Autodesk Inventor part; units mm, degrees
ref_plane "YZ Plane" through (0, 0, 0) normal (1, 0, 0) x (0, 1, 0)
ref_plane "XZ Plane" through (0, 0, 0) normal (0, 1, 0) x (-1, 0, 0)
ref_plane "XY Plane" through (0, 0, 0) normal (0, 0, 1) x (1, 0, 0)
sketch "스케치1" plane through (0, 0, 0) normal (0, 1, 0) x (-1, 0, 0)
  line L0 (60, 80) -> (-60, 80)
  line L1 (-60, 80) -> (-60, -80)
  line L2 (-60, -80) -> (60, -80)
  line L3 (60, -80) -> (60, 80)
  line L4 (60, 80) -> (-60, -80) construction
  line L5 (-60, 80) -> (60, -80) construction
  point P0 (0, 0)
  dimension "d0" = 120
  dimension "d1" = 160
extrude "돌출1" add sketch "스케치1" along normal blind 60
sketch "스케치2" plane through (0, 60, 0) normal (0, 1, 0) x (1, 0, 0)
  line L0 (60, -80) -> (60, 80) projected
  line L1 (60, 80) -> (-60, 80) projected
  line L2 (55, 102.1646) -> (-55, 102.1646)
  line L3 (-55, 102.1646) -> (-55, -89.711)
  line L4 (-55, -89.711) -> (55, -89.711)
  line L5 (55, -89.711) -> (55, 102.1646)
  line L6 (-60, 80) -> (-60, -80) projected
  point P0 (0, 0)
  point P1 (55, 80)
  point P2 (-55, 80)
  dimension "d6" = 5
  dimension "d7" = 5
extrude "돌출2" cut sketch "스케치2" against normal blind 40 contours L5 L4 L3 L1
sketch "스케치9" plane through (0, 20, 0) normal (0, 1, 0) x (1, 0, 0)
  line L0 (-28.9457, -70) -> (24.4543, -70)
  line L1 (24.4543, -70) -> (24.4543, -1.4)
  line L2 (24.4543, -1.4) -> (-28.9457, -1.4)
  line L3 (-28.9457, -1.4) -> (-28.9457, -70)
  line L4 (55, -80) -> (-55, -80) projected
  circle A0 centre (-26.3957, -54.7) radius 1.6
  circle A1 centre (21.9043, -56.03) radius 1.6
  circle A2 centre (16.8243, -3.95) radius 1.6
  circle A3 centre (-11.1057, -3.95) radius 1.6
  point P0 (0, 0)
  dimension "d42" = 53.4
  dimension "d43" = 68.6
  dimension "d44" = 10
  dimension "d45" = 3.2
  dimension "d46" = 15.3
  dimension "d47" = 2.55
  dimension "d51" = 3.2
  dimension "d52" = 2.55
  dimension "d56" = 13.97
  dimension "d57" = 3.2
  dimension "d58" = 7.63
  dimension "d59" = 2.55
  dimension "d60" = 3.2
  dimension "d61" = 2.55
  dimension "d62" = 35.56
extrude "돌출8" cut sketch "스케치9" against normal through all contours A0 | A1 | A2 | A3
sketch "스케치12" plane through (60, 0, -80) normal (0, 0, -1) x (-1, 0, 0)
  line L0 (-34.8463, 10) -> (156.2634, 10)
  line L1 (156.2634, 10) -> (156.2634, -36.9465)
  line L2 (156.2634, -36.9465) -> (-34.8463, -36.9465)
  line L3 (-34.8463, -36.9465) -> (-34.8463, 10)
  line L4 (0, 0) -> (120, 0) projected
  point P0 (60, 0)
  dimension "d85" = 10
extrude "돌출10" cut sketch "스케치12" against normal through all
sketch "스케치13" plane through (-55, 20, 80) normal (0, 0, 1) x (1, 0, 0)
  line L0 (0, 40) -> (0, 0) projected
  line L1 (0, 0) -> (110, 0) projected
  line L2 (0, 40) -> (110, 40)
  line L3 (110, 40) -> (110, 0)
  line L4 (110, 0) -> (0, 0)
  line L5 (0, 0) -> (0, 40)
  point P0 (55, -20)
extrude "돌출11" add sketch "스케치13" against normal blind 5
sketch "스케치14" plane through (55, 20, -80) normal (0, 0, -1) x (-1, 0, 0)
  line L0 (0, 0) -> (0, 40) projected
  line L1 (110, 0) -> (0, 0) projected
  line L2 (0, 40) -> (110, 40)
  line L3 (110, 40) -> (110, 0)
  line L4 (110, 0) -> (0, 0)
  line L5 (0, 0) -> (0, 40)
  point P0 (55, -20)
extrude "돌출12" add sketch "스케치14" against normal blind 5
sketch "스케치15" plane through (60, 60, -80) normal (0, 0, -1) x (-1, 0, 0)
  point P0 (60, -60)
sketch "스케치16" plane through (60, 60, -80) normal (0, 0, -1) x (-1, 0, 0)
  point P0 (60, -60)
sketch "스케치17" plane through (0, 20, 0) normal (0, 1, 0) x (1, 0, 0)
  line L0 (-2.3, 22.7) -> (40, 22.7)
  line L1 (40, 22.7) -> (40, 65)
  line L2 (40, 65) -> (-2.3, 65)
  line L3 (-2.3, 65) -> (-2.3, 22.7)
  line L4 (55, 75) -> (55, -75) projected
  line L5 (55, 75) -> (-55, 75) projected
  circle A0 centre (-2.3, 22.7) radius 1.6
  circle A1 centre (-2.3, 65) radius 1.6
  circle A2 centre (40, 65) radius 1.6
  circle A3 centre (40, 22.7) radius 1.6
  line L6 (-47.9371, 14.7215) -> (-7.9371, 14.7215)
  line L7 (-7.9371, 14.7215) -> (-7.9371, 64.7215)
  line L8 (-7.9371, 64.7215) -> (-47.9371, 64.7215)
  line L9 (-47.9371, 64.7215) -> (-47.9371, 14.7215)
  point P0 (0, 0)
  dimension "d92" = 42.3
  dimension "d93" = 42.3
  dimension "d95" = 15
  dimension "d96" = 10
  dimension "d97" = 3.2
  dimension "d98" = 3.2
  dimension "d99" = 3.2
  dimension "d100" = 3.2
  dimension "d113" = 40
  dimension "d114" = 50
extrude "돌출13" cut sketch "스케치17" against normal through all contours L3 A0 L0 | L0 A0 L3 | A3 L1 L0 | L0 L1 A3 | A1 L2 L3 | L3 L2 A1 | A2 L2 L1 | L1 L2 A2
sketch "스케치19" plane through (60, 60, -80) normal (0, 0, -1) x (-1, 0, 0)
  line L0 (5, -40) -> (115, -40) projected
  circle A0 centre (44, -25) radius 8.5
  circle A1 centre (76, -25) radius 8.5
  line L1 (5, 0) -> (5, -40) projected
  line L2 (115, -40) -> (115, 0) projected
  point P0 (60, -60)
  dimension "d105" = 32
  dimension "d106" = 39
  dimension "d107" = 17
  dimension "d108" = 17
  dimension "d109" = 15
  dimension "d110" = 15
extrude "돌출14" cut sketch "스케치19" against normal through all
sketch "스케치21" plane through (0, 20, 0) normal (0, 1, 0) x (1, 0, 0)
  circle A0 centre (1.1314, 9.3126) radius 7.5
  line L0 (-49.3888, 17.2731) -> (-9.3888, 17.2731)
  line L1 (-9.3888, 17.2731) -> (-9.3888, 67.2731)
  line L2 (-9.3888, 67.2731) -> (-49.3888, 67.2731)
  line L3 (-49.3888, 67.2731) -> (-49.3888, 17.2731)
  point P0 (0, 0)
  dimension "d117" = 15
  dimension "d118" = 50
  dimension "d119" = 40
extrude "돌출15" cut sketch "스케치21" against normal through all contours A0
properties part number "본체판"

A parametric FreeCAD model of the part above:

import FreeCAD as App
import Part
import Sketcher
Q = App.Units.Quantity


def add_polygon(sketch, points):
    """Adds a closed chain of lines whose ends are joined by coincident constraints."""
    first, n = sketch.GeometryCount, len(points)
    for a, b in zip(points, points[1:] + points[:1]):
        sketch.addGeometry(Part.LineSegment(App.Vector(*a, 0), App.Vector(*b, 0)), False)
    for i in range(n):
        sketch.addConstraint(Sketcher.Constraint("Coincident", first + i, 2, first + (i + 1) % n, 1))

doc = App.newDocument("Part")
body = doc.addObject("PartDesign::Body", "Body")

# Sketch on XZ plane
sketch1 = body.newObject("Sketcher::SketchObject", "Sketch")
sketch1.AttachmentSupport = (doc.getObject("XZ_Plane"), [""])
sketch1.MapMode = "FlatFace"
add_polygon(sketch1, [(-60, -80), (-60, 80), (60, 80), (60, -80)])  # lines 0-3
sketch1.addConstraint(Sketcher.Constraint("Vertical", 0))
sketch1.addConstraint(Sketcher.Constraint("Horizontal", 1))
sketch1.addConstraint(Sketcher.Constraint("Vertical", 2))
sketch1.addConstraint(Sketcher.Constraint("Horizontal", 3))
sketch1.addConstraint(Sketcher.Constraint("Symmetric", 0, 2, 2, 2, -1, 1))
sketch1.addConstraint(Sketcher.Constraint("DistanceX", 1, 1, 1, 2, Q("120 mm")))
sketch1.addConstraint(Sketcher.Constraint("DistanceY", 0, 1, 0, 2, Q("160 mm")))
pad1 = body.newObject("PartDesign::Pad", "Pad")
pad1.Profile = sketch1
pad1.Length = 60
pad1.Reversed = True

# Sketch on XZ plane
sketch2 = body.newObject("Sketcher::SketchObject", "Sketch001")
sketch2.AttachmentSupport = (doc.getObject("XZ_Plane"), [""])
sketch2.MapMode = "FlatFace"
sketch2.AttachmentOffset = App.Placement(App.Vector(0, 0, -60), App.Rotation())
add_polygon(sketch2, [(55, 90), (55, -80), (-55, -80), (-55, 90)])  # lines 0-3
sketch2.addConstraint(Sketcher.Constraint("Vertical", 0))
sketch2.addConstraint(Sketcher.Constraint("Horizontal", 1))
sketch2.addConstraint(Sketcher.Constraint("Vertical", 2))
sketch2.addConstraint(Sketcher.Constraint("Horizontal", 3))
sketch2.addConstraint(Sketcher.Constraint("DistanceX", 1, 2, 1, 1, Q("110 mm")))
sketch2.addConstraint(Sketcher.Constraint("DistanceX", -1, 1, 0, 2, Q("55 mm")))
sketch2.addConstraint(Sketcher.Constraint("DistanceY", 0, 2, -1, 1, Q("80 mm")))
sketch2.addConstraint(Sketcher.Constraint("DistanceY", 0, 2, 0, 1, Q("169.711 mm")))
pocket1 = body.newObject("PartDesign::Pocket", "Pocket")
pocket1.Profile = sketch2
pocket1.Length = 40
pocket1.Reversed = True

# Sketch on XZ plane
sketch3 = body.newObject("Sketcher::SketchObject", "Sketch002")
sketch3.AttachmentSupport = (doc.getObject("XZ_Plane"), [""])
sketch3.MapMode = "FlatFace"
sketch3.AttachmentOffset = App.Placement(App.Vector(0, 0, -20), App.Rotation())
sketch3.addGeometry(Part.Circle(App.Vector(-26.4, 54.7, 0), App.Vector(0, 0, 1), 1.6), False)
sketch3.addGeometry(Part.Circle(App.Vector(21.9, 56, 0), App.Vector(0, 0, 1), 1.6), False)
sketch3.addGeometry(Part.Circle(App.Vector(16.8, 4, 0), App.Vector(0, 0, 1), 1.6), False)
sketch3.addGeometry(Part.Circle(App.Vector(-11.1, 4, 0), App.Vector(0, 0, 1), 1.6), False)
sketch3.addConstraint(Sketcher.Constraint("Equal", 0, 1))
sketch3.addConstraint(Sketcher.Constraint("Equal", 1, 2))
sketch3.addConstraint(Sketcher.Constraint("Equal", 2, 3))
sketch3.addConstraint(Sketcher.Constraint("Horizontal", 2, 3, 3, 3))
sketch3.addConstraint(Sketcher.Constraint("Diameter", 0, Q("3.2 mm")))
sketch3.addConstraint(Sketcher.Constraint("DistanceY", -1, 1, 0, 3, Q("54.7 mm")))
sketch3.addConstraint(Sketcher.Constraint("DistanceX", 0, 3, 1, 3, Q("48.3 mm")))
sketch3.addConstraint(Sketcher.Constraint("DistanceY", -1, 1, 1, 3, Q("56.03 mm")))
sketch3.addConstraint(Sketcher.Constraint("DistanceY", -1, 1, 2, 3, Q("3.95 mm")))
sketch3.addConstraint(Sketcher.Constraint("DistanceX", 2, 3, 1, 3, Q("5.08 mm")))
sketch3.addConstraint(Sketcher.Constraint("DistanceX", 3, 3, 2, 3, Q("27.93 mm")))
sketch3.addConstraint(Sketcher.Constraint("DistanceX", 0, 3, -1, 1, Q("26.3957 mm")))
pocket2 = body.newObject("PartDesign::Pocket", "Pocket001")
pocket2.Profile = sketch3
pocket2.Type = "ThroughAll"
pocket2.Reversed = True

# Sketch on XY plane
sketch4 = body.newObject("Sketcher::SketchObject", "Sketch003")
sketch4.AttachmentSupport = (doc.getObject("XY_Plane"), [""])
sketch4.MapMode = "FlatFace"
sketch4.AttachmentOffset = App.Placement(App.Vector(0, 0, -80), App.Rotation())
add_polygon(sketch4, [(-96, 10), (95, 10), (95, -37), (-96, -37)])  # lines 0-3
sketch4.addConstraint(Sketcher.Constraint("Horizontal", 0))
sketch4.addConstraint(Sketcher.Constraint("Vertical", 1))
sketch4.addConstraint(Sketcher.Constraint("Horizontal", 2))
sketch4.addConstraint(Sketcher.Constraint("Vertical", 3))
sketch4.addConstraint(Sketcher.Constraint("DistanceY", -1, 1, 0, 2, Q("10 mm")))
sketch4.addConstraint(Sketcher.Constraint("DistanceX", 0, 1, 0, 2, Q("191.1097 mm")))
sketch4.addConstraint(Sketcher.Constraint("DistanceY", 1, 2, 1, 1, Q("46.9465 mm")))
sketch4.addConstraint(Sketcher.Constraint("DistanceX", -1, 1, 0, 2, Q("94.8463 mm")))
pocket3 = body.newObject("PartDesign::Pocket", "Pocket002")
pocket3.Profile = sketch4
pocket3.Type = "ThroughAll"
pocket3.Reversed = True

# Sketch on XY plane
sketch5 = body.newObject("Sketcher::SketchObject", "Sketch004")
sketch5.AttachmentSupport = (doc.getObject("XY_Plane"), [""])
sketch5.MapMode = "FlatFace"
sketch5.AttachmentOffset = App.Placement(App.Vector(0, 0, 80), App.Rotation())
add_polygon(sketch5, [(55, 60), (-55, 60), (-55, 20), (55, 20)])  # lines 0-3
sketch5.addConstraint(Sketcher.Constraint("Horizontal", 0))
sketch5.addConstraint(Sketcher.Constraint("Vertical", 1))
sketch5.addConstraint(Sketcher.Constraint("Horizontal", 2))
sketch5.addConstraint(Sketcher.Constraint("Vertical", 3))
sketch5.addConstraint(Sketcher.Constraint("DistanceX", 0, 2, 0, 1, Q("110 mm")))
sketch5.addConstraint(Sketcher.Constraint("DistanceY", 1, 2, 1, 1, Q("40 mm")))
sketch5.addConstraint(Sketcher.Constraint("DistanceX", 0, 2, -1, 1, Q("55 mm")))
sketch5.addConstraint(Sketcher.Constraint("DistanceY", -1, 1, 0, 2, Q("60 mm")))
pad2 = body.newObject("PartDesign::Pad", "Pad001")
pad2.Profile = sketch5
pad2.Length = 5
pad2.Reversed = True

# Sketch on XY plane
sketch6 = body.newObject("Sketcher::SketchObject", "Sketch005")
sketch6.AttachmentSupport = (doc.getObject("XY_Plane"), [""])
sketch6.MapMode = "FlatFace"
sketch6.AttachmentOffset = App.Placement(App.Vector(0, 0, -80), App.Rotation())
add_polygon(sketch6, [(55, 60), (55, 20), (-55, 20), (-55, 60)])  # lines 0-3
sketch6.addConstraint(Sketcher.Constraint("Vertical", 0))
sketch6.addConstraint(Sketcher.Constraint("Horizontal", 1))
sketch6.addConstraint(Sketcher.Constraint("Vertical", 2))
sketch6.addConstraint(Sketcher.Constraint("Horizontal", 3))
sketch6.addConstraint(Sketcher.Constraint("DistanceX", 1, 2, 1, 1, Q("110 mm")))
sketch6.addConstraint(Sketcher.Constraint("DistanceY", 0, 2, 0, 1, Q("40 mm")))
sketch6.addConstraint(Sketcher.Constraint("DistanceX", -1, 1, 0, 2, Q("55 mm")))
sketch6.addConstraint(Sketcher.Constraint("DistanceY", -1, 1, 0, 2, Q("20 mm")))
pad3 = body.newObject("PartDesign::Pad", "Pad002")
pad3.Profile = sketch6
pad3.Length = 5

# Sketch on XZ plane
sketch7 = body.newObject("Sketcher::SketchObject", "Sketch006")
sketch7.AttachmentSupport = (doc.getObject("XZ_Plane"), [""])
sketch7.MapMode = "FlatFace"
sketch7.AttachmentOffset = App.Placement(App.Vector(0, 0, -20), App.Rotation())
sketch7.addGeometry(Part.Circle(App.Vector(-2.3, -22.7, 0), App.Vector(0, 0, 1), 1.6), False)
sketch7.addGeometry(Part.Circle(App.Vector(40, -22.7, 0), App.Vector(0, 0, 1), 1.6), False)
sketch7.addGeometry(Part.Circle(App.Vector(-2.3, -65, 0), App.Vector(0, 0, 1), 1.6), False)
sketch7.addGeometry(Part.Circle(App.Vector(40, -65, 0), App.Vector(0, 0, 1), 1.6), False)
sketch7.addConstraint(Sketcher.Constraint("Equal", 0, 1))
sketch7.addConstraint(Sketcher.Constraint("Equal", 1, 2))
sketch7.addConstraint(Sketcher.Constraint("Equal", 2, 3))
sketch7.addConstraint(Sketcher.Constraint("Horizontal", 0, 3, 1, 3))
sketch7.addConstraint(Sketcher.Constraint("Horizontal", 2, 3, 3, 3))
sketch7.addConstraint(Sketcher.Constraint("Vertical", 0, 3, 2, 3))
sketch7.addConstraint(Sketcher.Constraint("Vertical", 1, 3, 3, 3))
sketch7.addConstraint(Sketcher.Constraint("Diameter", 0, Q("3.2 mm")))
sketch7.addConstraint(Sketcher.Constraint("DistanceX", -1, 1, 1, 3, Q("40 mm")))
sketch7.addConstraint(Sketcher.Constraint("DistanceX", 0, 3, 1, 3, Q("42.3 mm")))
sketch7.addConstraint(Sketcher.Constraint("DistanceY", 2, 3, 0, 3, Q("42.3 mm")))
sketch7.addConstraint(Sketcher.Constraint("DistanceY", 2, 3, -1, 1, Q("65 mm")))
pocket4 = body.newObject("PartDesign::Pocket", "Pocket003")
pocket4.Profile = sketch7
pocket4.Type = "ThroughAll"
pocket4.Reversed = True

# Sketch on XY plane
sketch8 = body.newObject("Sketcher::SketchObject", "Sketch007")
sketch8.AttachmentSupport = (doc.getObject("XY_Plane"), [""])
sketch8.MapMode = "FlatFace"
sketch8.AttachmentOffset = App.Placement(App.Vector(0, 0, -80), App.Rotation())
sketch8.addGeometry(Part.Circle(App.Vector(16, 35, 0), App.Vector(0, 0, 1), 8), False)
sketch8.addGeometry(Part.Circle(App.Vector(-16, 35, 0), App.Vector(0, 0, 1), 8), False)
sketch8.addConstraint(Sketcher.Constraint("Equal", 0, 1))
sketch8.addConstraint(Sketcher.Constraint("Symmetric", 0, 3, 1, 3, -2))
sketch8.addConstraint(Sketcher.Constraint("Diameter", 0, Q("17 mm")))
sketch8.addConstraint(Sketcher.Constraint("DistanceX", 1, 3, 0, 3, Q("32 mm")))
sketch8.addConstraint(Sketcher.Constraint("DistanceY", -1, 1, 0, 3, Q("35 mm")))
pocket5 = body.newObject("PartDesign::Pocket", "Pocket004")
pocket5.Profile = sketch8
pocket5.Type = "ThroughAll"
pocket5.Reversed = True

# Sketch on XZ plane
sketch9 = body.newObject("Sketcher::SketchObject", "Sketch008")
sketch9.AttachmentSupport = (doc.getObject("XZ_Plane"), [""])
sketch9.MapMode = "FlatFace"
sketch9.AttachmentOffset = App.Placement(App.Vector(0, 0, -20), App.Rotation())
sketch9.addGeometry(Part.Circle(App.Vector(1, -9, 0), App.Vector(0, 0, 1), 8), False)
sketch9.addConstraint(Sketcher.Constraint("Diameter", 0, Q("15 mm")))
sketch9.addConstraint(Sketcher.Constraint("DistanceX", -1, 1, 0, 3, Q("1.1314 mm")))
sketch9.addConstraint(Sketcher.Constraint("DistanceY", 0, 3, -1, 1, Q("9.3126 mm")))
pocket6 = body.newObject("PartDesign::Pocket", "Pocket005")
pocket6.Profile = sketch9
pocket6.Type = "ThroughAll"
pocket6.Reversed = True

doc.recompute()
